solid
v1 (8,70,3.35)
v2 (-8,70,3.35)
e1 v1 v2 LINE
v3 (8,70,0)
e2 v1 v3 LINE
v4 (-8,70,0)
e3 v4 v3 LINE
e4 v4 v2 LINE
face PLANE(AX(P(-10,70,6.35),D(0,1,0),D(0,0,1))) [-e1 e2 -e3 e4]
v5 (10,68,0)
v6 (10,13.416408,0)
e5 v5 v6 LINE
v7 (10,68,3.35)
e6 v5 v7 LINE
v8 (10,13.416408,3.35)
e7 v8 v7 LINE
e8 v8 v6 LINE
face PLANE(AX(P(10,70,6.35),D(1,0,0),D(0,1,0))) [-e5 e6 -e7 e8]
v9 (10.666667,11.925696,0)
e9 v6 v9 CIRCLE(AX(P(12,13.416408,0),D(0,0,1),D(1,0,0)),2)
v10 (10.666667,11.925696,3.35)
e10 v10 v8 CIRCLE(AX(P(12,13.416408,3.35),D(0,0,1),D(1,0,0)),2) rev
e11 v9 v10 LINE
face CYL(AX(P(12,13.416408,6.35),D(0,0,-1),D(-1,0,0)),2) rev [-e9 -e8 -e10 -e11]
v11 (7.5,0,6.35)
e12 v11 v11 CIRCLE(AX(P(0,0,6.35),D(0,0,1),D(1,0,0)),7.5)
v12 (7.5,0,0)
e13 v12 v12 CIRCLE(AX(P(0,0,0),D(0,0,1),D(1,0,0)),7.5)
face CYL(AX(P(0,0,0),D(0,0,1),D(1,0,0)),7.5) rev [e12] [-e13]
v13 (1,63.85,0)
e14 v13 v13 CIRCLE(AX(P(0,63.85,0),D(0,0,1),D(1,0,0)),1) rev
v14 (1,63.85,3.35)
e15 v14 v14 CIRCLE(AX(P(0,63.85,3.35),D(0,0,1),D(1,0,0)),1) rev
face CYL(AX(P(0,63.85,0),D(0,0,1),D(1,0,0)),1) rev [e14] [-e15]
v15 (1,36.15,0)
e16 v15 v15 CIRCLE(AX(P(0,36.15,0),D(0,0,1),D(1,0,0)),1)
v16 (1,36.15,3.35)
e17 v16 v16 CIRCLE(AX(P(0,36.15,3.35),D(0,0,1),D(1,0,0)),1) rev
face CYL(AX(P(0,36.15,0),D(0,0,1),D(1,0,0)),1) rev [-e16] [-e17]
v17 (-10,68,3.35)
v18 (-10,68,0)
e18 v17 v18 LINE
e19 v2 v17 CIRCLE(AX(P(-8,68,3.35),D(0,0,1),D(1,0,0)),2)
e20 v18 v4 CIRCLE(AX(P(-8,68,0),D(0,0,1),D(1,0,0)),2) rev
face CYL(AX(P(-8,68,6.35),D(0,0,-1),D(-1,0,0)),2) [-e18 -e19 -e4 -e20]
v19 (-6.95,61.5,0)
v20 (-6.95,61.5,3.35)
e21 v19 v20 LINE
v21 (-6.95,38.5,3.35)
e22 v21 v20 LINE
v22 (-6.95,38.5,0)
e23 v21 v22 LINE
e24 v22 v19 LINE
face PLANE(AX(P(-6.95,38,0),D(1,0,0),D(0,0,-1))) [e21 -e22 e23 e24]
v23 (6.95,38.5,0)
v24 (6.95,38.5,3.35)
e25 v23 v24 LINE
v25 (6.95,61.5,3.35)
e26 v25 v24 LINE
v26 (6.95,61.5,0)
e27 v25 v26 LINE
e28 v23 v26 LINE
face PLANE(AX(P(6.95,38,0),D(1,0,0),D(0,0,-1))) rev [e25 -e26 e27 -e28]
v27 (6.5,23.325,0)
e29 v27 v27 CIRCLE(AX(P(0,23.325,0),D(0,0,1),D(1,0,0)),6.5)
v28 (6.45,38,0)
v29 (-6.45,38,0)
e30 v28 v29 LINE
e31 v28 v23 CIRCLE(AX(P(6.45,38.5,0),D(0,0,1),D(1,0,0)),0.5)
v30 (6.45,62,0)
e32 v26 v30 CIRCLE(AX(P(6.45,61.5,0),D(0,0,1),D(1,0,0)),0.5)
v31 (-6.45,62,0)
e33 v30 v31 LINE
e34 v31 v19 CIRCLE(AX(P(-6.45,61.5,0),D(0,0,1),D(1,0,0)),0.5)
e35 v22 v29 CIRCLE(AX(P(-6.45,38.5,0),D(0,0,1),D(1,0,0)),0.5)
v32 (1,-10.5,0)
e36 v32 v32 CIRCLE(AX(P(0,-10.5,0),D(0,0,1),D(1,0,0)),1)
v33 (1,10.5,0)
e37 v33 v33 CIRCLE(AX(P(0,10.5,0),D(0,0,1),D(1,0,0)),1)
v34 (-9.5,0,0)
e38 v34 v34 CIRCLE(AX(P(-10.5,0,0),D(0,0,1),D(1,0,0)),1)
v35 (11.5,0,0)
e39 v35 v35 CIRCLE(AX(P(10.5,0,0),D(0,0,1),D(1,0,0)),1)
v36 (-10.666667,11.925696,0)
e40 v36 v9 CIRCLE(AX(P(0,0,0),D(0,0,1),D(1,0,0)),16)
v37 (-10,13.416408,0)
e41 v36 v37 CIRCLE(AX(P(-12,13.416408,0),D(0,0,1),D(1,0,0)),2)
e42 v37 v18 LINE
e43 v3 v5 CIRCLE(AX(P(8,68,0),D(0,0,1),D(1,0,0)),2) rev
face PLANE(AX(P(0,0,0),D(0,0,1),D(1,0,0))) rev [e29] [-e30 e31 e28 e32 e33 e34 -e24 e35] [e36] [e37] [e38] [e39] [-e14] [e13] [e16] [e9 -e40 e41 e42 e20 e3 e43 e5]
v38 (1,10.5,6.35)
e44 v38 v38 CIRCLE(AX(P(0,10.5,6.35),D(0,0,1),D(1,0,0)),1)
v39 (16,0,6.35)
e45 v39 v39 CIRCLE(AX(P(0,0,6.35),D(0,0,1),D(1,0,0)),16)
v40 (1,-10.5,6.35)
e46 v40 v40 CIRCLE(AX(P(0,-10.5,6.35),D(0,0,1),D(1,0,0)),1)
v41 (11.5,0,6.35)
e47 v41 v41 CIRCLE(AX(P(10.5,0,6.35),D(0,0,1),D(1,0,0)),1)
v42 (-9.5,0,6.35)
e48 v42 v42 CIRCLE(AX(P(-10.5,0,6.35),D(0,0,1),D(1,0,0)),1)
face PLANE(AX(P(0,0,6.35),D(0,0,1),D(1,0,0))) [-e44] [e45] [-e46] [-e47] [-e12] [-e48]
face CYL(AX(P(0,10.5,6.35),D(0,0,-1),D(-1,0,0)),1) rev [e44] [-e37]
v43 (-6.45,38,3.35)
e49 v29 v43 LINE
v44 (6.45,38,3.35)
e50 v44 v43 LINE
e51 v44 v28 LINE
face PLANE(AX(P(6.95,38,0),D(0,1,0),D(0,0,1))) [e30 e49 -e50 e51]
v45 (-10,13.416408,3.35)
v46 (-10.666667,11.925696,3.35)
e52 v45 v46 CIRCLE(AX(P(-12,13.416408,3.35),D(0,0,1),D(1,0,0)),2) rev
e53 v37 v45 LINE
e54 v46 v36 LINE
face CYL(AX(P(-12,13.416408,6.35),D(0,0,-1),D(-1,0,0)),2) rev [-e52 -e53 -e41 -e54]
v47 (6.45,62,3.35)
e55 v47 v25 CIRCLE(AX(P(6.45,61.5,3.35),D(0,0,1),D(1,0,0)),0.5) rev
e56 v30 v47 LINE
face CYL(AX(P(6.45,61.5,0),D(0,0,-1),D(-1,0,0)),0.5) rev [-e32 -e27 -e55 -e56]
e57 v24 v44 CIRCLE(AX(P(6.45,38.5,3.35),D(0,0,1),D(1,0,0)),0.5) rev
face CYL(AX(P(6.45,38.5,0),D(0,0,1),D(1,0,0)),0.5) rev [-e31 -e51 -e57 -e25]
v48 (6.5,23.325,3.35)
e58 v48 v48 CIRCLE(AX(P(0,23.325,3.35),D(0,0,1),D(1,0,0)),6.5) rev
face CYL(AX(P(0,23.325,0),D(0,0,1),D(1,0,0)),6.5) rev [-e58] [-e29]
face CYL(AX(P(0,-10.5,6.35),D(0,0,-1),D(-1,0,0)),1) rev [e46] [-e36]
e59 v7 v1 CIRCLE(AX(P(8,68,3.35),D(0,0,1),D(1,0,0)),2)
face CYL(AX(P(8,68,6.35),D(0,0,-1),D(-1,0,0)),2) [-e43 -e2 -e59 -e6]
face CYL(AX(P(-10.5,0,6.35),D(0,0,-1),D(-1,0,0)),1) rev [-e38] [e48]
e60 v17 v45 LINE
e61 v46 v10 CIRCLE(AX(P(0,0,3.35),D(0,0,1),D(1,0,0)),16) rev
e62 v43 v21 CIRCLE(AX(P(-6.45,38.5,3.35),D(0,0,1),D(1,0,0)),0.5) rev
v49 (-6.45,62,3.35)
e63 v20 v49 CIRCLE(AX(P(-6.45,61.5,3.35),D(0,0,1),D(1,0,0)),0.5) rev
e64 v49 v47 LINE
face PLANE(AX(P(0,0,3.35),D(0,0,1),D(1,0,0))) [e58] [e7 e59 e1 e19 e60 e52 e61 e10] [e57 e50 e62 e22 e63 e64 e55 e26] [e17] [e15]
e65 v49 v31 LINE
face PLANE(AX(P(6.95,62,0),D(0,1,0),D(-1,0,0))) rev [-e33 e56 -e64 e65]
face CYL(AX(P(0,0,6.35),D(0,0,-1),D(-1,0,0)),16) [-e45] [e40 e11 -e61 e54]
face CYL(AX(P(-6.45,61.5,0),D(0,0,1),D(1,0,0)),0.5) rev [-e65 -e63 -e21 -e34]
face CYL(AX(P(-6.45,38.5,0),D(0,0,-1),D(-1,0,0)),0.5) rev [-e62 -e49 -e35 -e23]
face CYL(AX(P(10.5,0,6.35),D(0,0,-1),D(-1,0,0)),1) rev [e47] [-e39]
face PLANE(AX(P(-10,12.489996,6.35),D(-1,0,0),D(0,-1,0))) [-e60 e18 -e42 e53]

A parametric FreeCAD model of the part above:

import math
import FreeCAD as App
import Part
import Sketcher

V = App.Vector
Q = App.Units.Quantity


def edges_at(feature, points):
    """Names of the edges that pass closest to the given points."""
    edges = feature.Shape.Edges
    near = lambda p: min(range(len(edges)), key=lambda i: edges[i].distToShape(Part.Vertex(*p))[0])
    return sorted({f"Edge{near(p) + 1}" for p in points})


def add_polygon(sketch, points):
    """Adds a closed chain of lines whose ends are joined by coincident constraints."""
    first, n = sketch.GeometryCount, len(points)
    for a, b in zip(points, points[1:] + points[:1]):
        sketch.addGeometry(Part.LineSegment(App.Vector(*a, 0), App.Vector(*b, 0)), False)
    for i in range(n):
        sketch.addConstraint(Sketcher.Constraint("Coincident", first + i, 2, first + (i + 1) % n, 1))

doc = App.newDocument("Part")
params = doc.addObject("Spreadsheet::Sheet", "Params")
for row, (alias, value) in enumerate([
    ("sketch1_diameter", "2 mm"),
    ("sketch1_radius", "16 mm"),
    ("sketch1_width", "20 mm"),
    ("pad1_length", "6.35 mm"),
    ("sketch2_diameter", "2 mm"),
    ("sketch2_height", "24 mm"),
    ("sketch2_width", "13.9 mm"),
    ("fillet_radius", "0.5 mm"),
    ("fillet2_radius", "2 mm"),
    ("sketch3_diameter", "13 mm"),
    ("pocket2_length", "6.35 mm"),
    ("sketch4_diameter", "15 mm"),
    ("sketch5_diameter", "13 mm"),
    ("sketch5_diameter2", "2 mm"),
    ("sketch5_radius", "16 mm"),
    ("sketch5_radius2", "2 mm"),
    ("sketch5_radius3", "0.5 mm"),
    ("pocket4_length", "3 mm"),
], start=1):
    params.set(f"A{row}", alias)
    params.set(f"B{row}", "=" + value)
    params.setAlias(f"B{row}", alias)

body = doc.addObject("PartDesign::Body", "Body")

# Sketch on XY plane
sketch1 = doc.addObject("Sketcher::SketchObject", "Sketch")
body.addObject(sketch1)
sketch1.AttachmentSupport = (doc.XY_Plane, [""])
sketch1.MapMode = "FlatFace"
sketch1.addGeometry(Part.LineSegment(V(-10, 70, 0), V(-10, 12.5, 0)), False)
sketch1.addGeometry(Part.ArcOfCircle(Part.Circle(V(0, 0, 0), V(0, 0, 1), 16), math.radians(129), math.radians(411)), False)
sketch1.addGeometry(Part.LineSegment(V(10, 12.5, 0), V(10, 70, 0)), False)
sketch1.addGeometry(Part.LineSegment(V(10, 70, 0), V(-10, 70, 0)), False)
sketch1.addGeometry(Part.Circle(V(0, -10.5, 0), V(0, 0, 1), 1), False)
sketch1.addGeometry(Part.Circle(V(10.5, 0, 0), V(0, 0, 1), 1), False)
sketch1.addGeometry(Part.Circle(V(-10.5, 0, 0), V(0, 0, 1), 1), False)
sketch1.addGeometry(Part.Circle(V(0, 10.5, 0), V(0, 0, 1), 1), False)
sketch1.addConstraint(Sketcher.Constraint("Coincident", 0, 2, 1, 1))
sketch1.addConstraint(Sketcher.Constraint("Coincident", 1, 2, 2, 1))
sketch1.addConstraint(Sketcher.Constraint("Coincident", 2, 2, 3, 1))
sketch1.addConstraint(Sketcher.Constraint("Coincident", 3, 2, 0, 1))
sketch1.addConstraint(Sketcher.Constraint("Vertical", 0))
sketch1.addConstraint(Sketcher.Constraint("Vertical", 2))
sketch1.addConstraint(Sketcher.Constraint("Horizontal", 3))
sketch1.addConstraint(Sketcher.Constraint("Coincident", 1, 3, -1, 1))
sketch1.addConstraint(Sketcher.Constraint("Equal", 4, 5))
sketch1.addConstraint(Sketcher.Constraint("Equal", 5, 6))
sketch1.addConstraint(Sketcher.Constraint("Equal", 6, 7))
sketch1.addConstraint(Sketcher.Constraint("Symmetric", 5, 3, 6, 3, -1, 1))
sketch1.addConstraint(Sketcher.Constraint("Symmetric", 4, 3, 7, 3, -1, 1))
sketch1.addConstraint(Sketcher.Constraint("PointOnObject", 4, 3, -2))
sketch1.addConstraint(Sketcher.Constraint("PointOnObject", 5, 3, -1))
sketch1.addConstraint(Sketcher.Constraint("Horizontal", 0, 2, 1, 2))
sketch1.addConstraint(Sketcher.Constraint("Diameter", 4, Q("2 mm")))
sketch1.addConstraint(Sketcher.Constraint("Radius", 1, Q("16 mm")))
sketch1.addConstraint(Sketcher.Constraint("DistanceX", 3, 2, 3, 1, Q("20 mm")))
sketch1.addConstraint(Sketcher.Constraint("DistanceY", -1, 1, 2, 2, Q("70 mm")))
sketch1.addConstraint(Sketcher.Constraint("DistanceX", 6, 3, 5, 3, Q("21 mm")))
sketch1.addConstraint(Sketcher.Constraint("DistanceY", 4, 3, 7, 3, Q("21 mm")))
sketch1.setExpression("Constraints[16]", "Params.sketch1_diameter")
sketch1.setExpression("Constraints[17]", "Params.sketch1_radius")
sketch1.setExpression("Constraints[18]", "Params.sketch1_width")
pad1 = doc.addObject("PartDesign::Pad", "Pad")
body.addObject(pad1)
pad1.Profile = sketch1
pad1.setExpression("Length", "Params.pad1_length")

# Sketch on XY plane
sketch2 = doc.addObject("Sketcher::SketchObject", "Sketch001")
body.addObject(sketch2)
sketch2.AttachmentSupport = (doc.XY_Plane, [""])
sketch2.MapMode = "FlatFace"
sketch2.AttachmentOffset = App.Placement(V(0, 0, 6.35), App.Rotation())
sketch2.addGeometry(Part.Circle(V(0, 63.9, 0), V(0, 0, 1), 1), False)  # 0
sketch2.addGeometry(Part.Circle(V(0, 36.1, 0), V(0, 0, 1), 1), False)  # 1
add_polygon(sketch2, [(-7, 62), (-7, 38), (7, 38), (7, 62)])  # lines 2-5
sketch2.addConstraint(Sketcher.Constraint("Vertical", 2))
sketch2.addConstraint(Sketcher.Constraint("Horizontal", 3))
sketch2.addConstraint(Sketcher.Constraint("Vertical", 4))
sketch2.addConstraint(Sketcher.Constraint("Horizontal", 5))
sketch2.addConstraint(Sketcher.Constraint("Equal", 0, 1))
sketch2.addConstraint(Sketcher.Constraint("PointOnObject", 0, 3, -2))
sketch2.addConstraint(Sketcher.Constraint("PointOnObject", 1, 3, -2))
sketch2.addConstraint(Sketcher.Constraint("Diameter", 0, Q("2 mm")))
sketch2.addConstraint(Sketcher.Constraint("DistanceY", 2, 2, 2, 1, Q("24 mm")))
sketch2.addConstraint(Sketcher.Constraint("DistanceX", 3, 1, 3, 2, Q("13.9 mm")))
sketch2.addConstraint(Sketcher.Constraint("DistanceY", -1, 1, 2, 2, Q("38 mm")))
sketch2.addConstraint(Sketcher.Constraint("DistanceY", 1, 3, 0, 3, Q("27.7 mm")))
sketch2.addConstraint(Sketcher.Constraint("DistanceY", -1, 1, 0, 3, Q("63.85 mm")))
sketch2.addConstraint(Sketcher.Constraint("DistanceX", 2, 2, -1, 1, Q("6.95 mm")))
sketch2.setExpression("Constraints[11]", "Params.sketch2_diameter")
sketch2.setExpression("Constraints[12]", "Params.sketch2_height")
sketch2.setExpression("Constraints[13]", "Params.sketch2_width")
pocket1 = doc.addObject("PartDesign::Pocket", "Pocket")
body.addObject(pocket1)
pocket1.Profile = sketch2
pocket1.Type = "ThroughAll"
doc.recompute()

fillet = doc.addObject("PartDesign::Fillet", "Fillet")
body.addObject(fillet)
fillet.Base = (pocket1, edges_at(pocket1, [
    (6.95, 38, 3.175),
    (-6.95, 38, 3.175),
    (-6.95, 62, 3.175),
    (6.95, 62, 3.175),
]))
fillet.setExpression("Radius", "Params.fillet_radius")
doc.recompute()

fillet2 = doc.addObject("PartDesign::Fillet", "Fillet001")
body.addObject(fillet2)
fillet2.Base = (fillet, edges_at(fillet, [
    (-10, 12.49, 3.175),
    (-10, 70, 3.175),
    (10, 70, 3.175),
    (10, 12.49, 3.175),
]))
fillet2.setExpression("Radius", "Params.fillet2_radius")

# Sketch on XY plane
sketch3 = doc.addObject("Sketcher::SketchObject", "Sketch002")
body.addObject(sketch3)
sketch3.AttachmentSupport = (doc.XY_Plane, [""])
sketch3.MapMode = "FlatFace"
sketch3.AttachmentOffset = App.Placement(V(0, 0, 6.35), App.Rotation())
sketch3.addGeometry(Part.Circle(V(0, 23, 0), V(0, 0, 1), 6), False)
sketch3.addConstraint(Sketcher.Constraint("PointOnObject", 0, 3, -2))
sketch3.addConstraint(Sketcher.Constraint("Diameter", 0, Q("13 mm")))
sketch3.addConstraint(Sketcher.Constraint("DistanceY", -1, 1, 0, 3, Q("23.325 mm")))
sketch3.setExpression("Constraints[1]", "Params.sketch3_diameter")
pocket2 = doc.addObject("PartDesign::Pocket", "Pocket001")
body.addObject(pocket2)
pocket2.Profile = sketch3
pocket2.setExpression("Length", "Params.pocket2_length")

# Sketch on XY plane
sketch4 = doc.addObject("Sketcher::SketchObject", "Sketch003")
body.addObject(sketch4)
sketch4.AttachmentSupport = (doc.XY_Plane, [""])
sketch4.MapMode = "FlatFace"
sketch4.AttachmentOffset = App.Placement(V(0, 0, 6.35), App.Rotation())
sketch4.addGeometry(Part.Circle(V(0, 0, 0), V(0, 0, 1), 8), False)
sketch4.addConstraint(Sketcher.Constraint("Coincident", 0, 3, -1, 1))
sketch4.addConstraint(Sketcher.Constraint("Diameter", 0, Q("15 mm")))
sketch4.setExpression("Constraints[1]", "Params.sketch4_diameter")
pocket3 = doc.addObject("PartDesign::Pocket", "Pocket002")
body.addObject(pocket3)
pocket3.Profile = sketch4
pocket3.Type = "ThroughAll"

# Sketch on XY plane
sketch5 = doc.addObject("Sketcher::SketchObject", "Sketch004")
body.addObject(sketch5)
sketch5.AttachmentSupport = (doc.XY_Plane, [""])
sketch5.MapMode = "FlatFace"
sketch5.AttachmentOffset = App.Placement(V(0, 0, 6.35), App.Rotation())
sketch5.addGeometry(Part.ArcOfCircle(Part.Circle(V(0, 0, 0), V(0, 0, 1), 16), math.radians(48), math.radians(132)), False)
sketch5.addGeometry(Part.ArcOfCircle(Part.Circle(V(12, 13.42, 0), V(0, 0, 1), 2), math.radians(-180), math.radians(-132)), False)
sketch5.addGeometry(Part.LineSegment(V(10, 13.42, 0), V(10, 68, 0)), False)
sketch5.addGeometry(Part.ArcOfCircle(Part.Circle(V(8, 68, 0), V(0, 0, 1), 2), math.radians(0), math.radians(90)), False)
sketch5.addGeometry(Part.LineSegment(V(8, 70, 0), V(-8, 70, 0)), False)
sketch5.addGeometry(Part.ArcOfCircle(Part.Circle(V(-8, 68, 0), V(0, 0, 1), 2), math.radians(90), math.radians(180)), False)
sketch5.addGeometry(Part.LineSegment(V(-10, 68, 0), V(-10, 13.42, 0)), False)
sketch5.addGeometry(Part.ArcOfCircle(Part.Circle(V(-12, 13.42, 0), V(0, 0, 1), 2), math.radians(-48), math.radians(0)), False)
sketch5.addGeometry(Part.Circle(V(0, 23.32, 0), V(0, 0, 1), 6.5), False)
sketch5.addGeometry(Part.Circle(V(0, 36.15, 0), V(0, 0, 1), 1), False)
sketch5.addGeometry(Part.LineSegment(V(-6.45, 62, 0), V(6.45, 62, 0)), False)
sketch5.addGeometry(Part.ArcOfCircle(Part.Circle(V(6.45, 61.5, 0), V(0, 0, 1), 0.5), math.radians(0), math.radians(90)), False)
sketch5.addGeometry(Part.LineSegment(V(6.95, 61.5, 0), V(6.95, 38.5, 0)), False)
sketch5.addGeometry(Part.ArcOfCircle(Part.Circle(V(6.45, 38.5, 0), V(0, 0, 1), 0.5), math.radians(-90), math.radians(0)), False)
sketch5.addGeometry(Part.LineSegment(V(6.45, 38, 0), V(-6.45, 38, 0)), False)
sketch5.addGeometry(Part.ArcOfCircle(Part.Circle(V(-6.45, 38.5, 0), V(0, 0, 1), 0.5), math.radians(180), math.radians(270)), False)
sketch5.addGeometry(Part.LineSegment(V(-6.95, 38.5, 0), V(-6.95, 61.5, 0)), False)
sketch5.addGeometry(Part.ArcOfCircle(Part.Circle(V(-6.45, 61.5, 0), V(0, 0, 1), 0.5), math.radians(90), math.radians(180)), False)
sketch5.addGeometry(Part.Circle(V(0, 63.85, 0), V(0, 0, 1), 1), False)
sketch5.addConstraint(Sketcher.Constraint("Tangent", 0, 1, 1, 2))
sketch5.addConstraint(Sketcher.Constraint("Tangent", 1, 1, 2, 1))
sketch5.addConstraint(Sketcher.Constraint("Tangent", 2, 2, 3, 1))
sketch5.addConstraint(Sketcher.Constraint("Tangent", 3, 2, 4, 1))
sketch5.addConstraint(Sketcher.Constraint("Tangent", 4, 2, 5, 1))
sketch5.addConstraint(Sketcher.Constraint("Tangent", 5, 2, 6, 1))
sketch5.addConstraint(Sketcher.Constraint("Tangent", 6, 2, 7, 2))
sketch5.addConstraint(Sketcher.Constraint("Tangent", 7, 1, 0, 2))
sketch5.addConstraint(Sketcher.Constraint("Tangent", 10, 2, 11, 2))
sketch5.addConstraint(Sketcher.Constraint("Tangent", 11, 1, 12, 1))
sketch5.addConstraint(Sketcher.Constraint("Tangent", 12, 2, 13, 2))
sketch5.addConstraint(Sketcher.Constraint("Tangent", 13, 1, 14, 1))
sketch5.addConstraint(Sketcher.Constraint("Tangent", 14, 2, 15, 2))
sketch5.addConstraint(Sketcher.Constraint("Tangent", 15, 1, 16, 1))
sketch5.addConstraint(Sketcher.Constraint("Tangent", 16, 2, 17, 2))
sketch5.addConstraint(Sketcher.Constraint("Tangent", 17, 1, 10, 1))
sketch5.addConstraint(Sketcher.Constraint("Vertical", 2))
sketch5.addConstraint(Sketcher.Constraint("Horizontal", 4))
sketch5.addConstraint(Sketcher.Constraint("Vertical", 6))
sketch5.addConstraint(Sketcher.Constraint("Horizontal", 10))
sketch5.addConstraint(Sketcher.Constraint("Vertical", 12))
sketch5.addConstraint(Sketcher.Constraint("Horizontal", 14))
sketch5.addConstraint(Sketcher.Constraint("Vertical", 16))
sketch5.addConstraint(Sketcher.Constraint("Coincident", 0, 3, -1, 1))
sketch5.addConstraint(Sketcher.Constraint("Equal", 1, 3))
sketch5.addConstraint(Sketcher.Constraint("Equal", 3, 5))
sketch5.addConstraint(Sketcher.Constraint("Equal", 5, 7))
sketch5.addConstraint(Sketcher.Constraint("Equal", 11, 13))
sketch5.addConstraint(Sketcher.Constraint("Equal", 13, 15))
sketch5.addConstraint(Sketcher.Constraint("Equal", 15, 17))
sketch5.addConstraint(Sketcher.Constraint("Equal", 9, 18))
sketch5.addConstraint(Sketcher.Constraint("PointOnObject", 8, 3, -2))
sketch5.addConstraint(Sketcher.Constraint("PointOnObject", 9, 3, -2))
sketch5.addConstraint(Sketcher.Constraint("PointOnObject", 18, 3, -2))
sketch5.addConstraint(Sketcher.Constraint("Horizontal", 1, 3, 7, 3))
sketch5.addConstraint(Sketcher.Constraint("Diameter", 8, Q("13 mm")))
sketch5.addConstraint(Sketcher.Constraint("Diameter", 9, Q("2 mm")))
sketch5.addConstraint(Sketcher.Constraint("Radius", 0, Q("16 mm")))
sketch5.addConstraint(Sketcher.Constraint("Radius", 1, Q("2 mm")))
sketch5.addConstraint(Sketcher.Constraint("Radius", 11, Q("0.5 mm")))
sketch5.addConstraint(Sketcher.Constraint("DistanceX", 4, 2, 4, 1, Q("16 mm")))
sketch5.addConstraint(Sketcher.Constraint("DistanceY", 12, 2, 12, 1, Q("23 mm")))
sketch5.addConstraint(Sketcher.Constraint("DistanceX", 10, 1, 10, 2, Q("12.9 mm")))
sketch5.addConstraint(Sketcher.Constraint("DistanceY", -1, 1, 3, 3, Q("68 mm")))
sketch5.addConstraint(Sketcher.Constraint("DistanceY", -1, 1, 10, 2, Q("62 mm")))
sketch5.addConstraint(Sketcher.Constraint("DistanceY", -1, 1, 9, 3, Q("36.15 mm")))
sketch5.addConstraint(Sketcher.Constraint("DistanceX", -1, 1, 11, 3, Q("6.45 mm")))
sketch5.addConstraint(Sketcher.Constraint("DistanceY", -1, 1, 18, 3, Q("63.85 mm")))
sketch5.addConstraint(Sketcher.Constraint("DistanceY", -1, 1, 8, 3, Q("23.325 mm")))
sketch5.setExpression("Constraints[35]", "Params.sketch5_diameter")
sketch5.setExpression("Constraints[36]", "Params.sketch5_diameter2")
sketch5.setExpression("Constraints[37]", "Params.sketch5_radius")
sketch5.setExpression("Constraints[38]", "Params.sketch5_radius2")
sketch5.setExpression("Constraints[39]", "Params.sketch5_radius3")
pocket4 = doc.addObject("PartDesign::Pocket", "Pocket003")
body.addObject(pocket4)
pocket4.Profile = sketch5
pocket4.setExpression("Length", "Params.pocket4_length")

doc.recompute()
